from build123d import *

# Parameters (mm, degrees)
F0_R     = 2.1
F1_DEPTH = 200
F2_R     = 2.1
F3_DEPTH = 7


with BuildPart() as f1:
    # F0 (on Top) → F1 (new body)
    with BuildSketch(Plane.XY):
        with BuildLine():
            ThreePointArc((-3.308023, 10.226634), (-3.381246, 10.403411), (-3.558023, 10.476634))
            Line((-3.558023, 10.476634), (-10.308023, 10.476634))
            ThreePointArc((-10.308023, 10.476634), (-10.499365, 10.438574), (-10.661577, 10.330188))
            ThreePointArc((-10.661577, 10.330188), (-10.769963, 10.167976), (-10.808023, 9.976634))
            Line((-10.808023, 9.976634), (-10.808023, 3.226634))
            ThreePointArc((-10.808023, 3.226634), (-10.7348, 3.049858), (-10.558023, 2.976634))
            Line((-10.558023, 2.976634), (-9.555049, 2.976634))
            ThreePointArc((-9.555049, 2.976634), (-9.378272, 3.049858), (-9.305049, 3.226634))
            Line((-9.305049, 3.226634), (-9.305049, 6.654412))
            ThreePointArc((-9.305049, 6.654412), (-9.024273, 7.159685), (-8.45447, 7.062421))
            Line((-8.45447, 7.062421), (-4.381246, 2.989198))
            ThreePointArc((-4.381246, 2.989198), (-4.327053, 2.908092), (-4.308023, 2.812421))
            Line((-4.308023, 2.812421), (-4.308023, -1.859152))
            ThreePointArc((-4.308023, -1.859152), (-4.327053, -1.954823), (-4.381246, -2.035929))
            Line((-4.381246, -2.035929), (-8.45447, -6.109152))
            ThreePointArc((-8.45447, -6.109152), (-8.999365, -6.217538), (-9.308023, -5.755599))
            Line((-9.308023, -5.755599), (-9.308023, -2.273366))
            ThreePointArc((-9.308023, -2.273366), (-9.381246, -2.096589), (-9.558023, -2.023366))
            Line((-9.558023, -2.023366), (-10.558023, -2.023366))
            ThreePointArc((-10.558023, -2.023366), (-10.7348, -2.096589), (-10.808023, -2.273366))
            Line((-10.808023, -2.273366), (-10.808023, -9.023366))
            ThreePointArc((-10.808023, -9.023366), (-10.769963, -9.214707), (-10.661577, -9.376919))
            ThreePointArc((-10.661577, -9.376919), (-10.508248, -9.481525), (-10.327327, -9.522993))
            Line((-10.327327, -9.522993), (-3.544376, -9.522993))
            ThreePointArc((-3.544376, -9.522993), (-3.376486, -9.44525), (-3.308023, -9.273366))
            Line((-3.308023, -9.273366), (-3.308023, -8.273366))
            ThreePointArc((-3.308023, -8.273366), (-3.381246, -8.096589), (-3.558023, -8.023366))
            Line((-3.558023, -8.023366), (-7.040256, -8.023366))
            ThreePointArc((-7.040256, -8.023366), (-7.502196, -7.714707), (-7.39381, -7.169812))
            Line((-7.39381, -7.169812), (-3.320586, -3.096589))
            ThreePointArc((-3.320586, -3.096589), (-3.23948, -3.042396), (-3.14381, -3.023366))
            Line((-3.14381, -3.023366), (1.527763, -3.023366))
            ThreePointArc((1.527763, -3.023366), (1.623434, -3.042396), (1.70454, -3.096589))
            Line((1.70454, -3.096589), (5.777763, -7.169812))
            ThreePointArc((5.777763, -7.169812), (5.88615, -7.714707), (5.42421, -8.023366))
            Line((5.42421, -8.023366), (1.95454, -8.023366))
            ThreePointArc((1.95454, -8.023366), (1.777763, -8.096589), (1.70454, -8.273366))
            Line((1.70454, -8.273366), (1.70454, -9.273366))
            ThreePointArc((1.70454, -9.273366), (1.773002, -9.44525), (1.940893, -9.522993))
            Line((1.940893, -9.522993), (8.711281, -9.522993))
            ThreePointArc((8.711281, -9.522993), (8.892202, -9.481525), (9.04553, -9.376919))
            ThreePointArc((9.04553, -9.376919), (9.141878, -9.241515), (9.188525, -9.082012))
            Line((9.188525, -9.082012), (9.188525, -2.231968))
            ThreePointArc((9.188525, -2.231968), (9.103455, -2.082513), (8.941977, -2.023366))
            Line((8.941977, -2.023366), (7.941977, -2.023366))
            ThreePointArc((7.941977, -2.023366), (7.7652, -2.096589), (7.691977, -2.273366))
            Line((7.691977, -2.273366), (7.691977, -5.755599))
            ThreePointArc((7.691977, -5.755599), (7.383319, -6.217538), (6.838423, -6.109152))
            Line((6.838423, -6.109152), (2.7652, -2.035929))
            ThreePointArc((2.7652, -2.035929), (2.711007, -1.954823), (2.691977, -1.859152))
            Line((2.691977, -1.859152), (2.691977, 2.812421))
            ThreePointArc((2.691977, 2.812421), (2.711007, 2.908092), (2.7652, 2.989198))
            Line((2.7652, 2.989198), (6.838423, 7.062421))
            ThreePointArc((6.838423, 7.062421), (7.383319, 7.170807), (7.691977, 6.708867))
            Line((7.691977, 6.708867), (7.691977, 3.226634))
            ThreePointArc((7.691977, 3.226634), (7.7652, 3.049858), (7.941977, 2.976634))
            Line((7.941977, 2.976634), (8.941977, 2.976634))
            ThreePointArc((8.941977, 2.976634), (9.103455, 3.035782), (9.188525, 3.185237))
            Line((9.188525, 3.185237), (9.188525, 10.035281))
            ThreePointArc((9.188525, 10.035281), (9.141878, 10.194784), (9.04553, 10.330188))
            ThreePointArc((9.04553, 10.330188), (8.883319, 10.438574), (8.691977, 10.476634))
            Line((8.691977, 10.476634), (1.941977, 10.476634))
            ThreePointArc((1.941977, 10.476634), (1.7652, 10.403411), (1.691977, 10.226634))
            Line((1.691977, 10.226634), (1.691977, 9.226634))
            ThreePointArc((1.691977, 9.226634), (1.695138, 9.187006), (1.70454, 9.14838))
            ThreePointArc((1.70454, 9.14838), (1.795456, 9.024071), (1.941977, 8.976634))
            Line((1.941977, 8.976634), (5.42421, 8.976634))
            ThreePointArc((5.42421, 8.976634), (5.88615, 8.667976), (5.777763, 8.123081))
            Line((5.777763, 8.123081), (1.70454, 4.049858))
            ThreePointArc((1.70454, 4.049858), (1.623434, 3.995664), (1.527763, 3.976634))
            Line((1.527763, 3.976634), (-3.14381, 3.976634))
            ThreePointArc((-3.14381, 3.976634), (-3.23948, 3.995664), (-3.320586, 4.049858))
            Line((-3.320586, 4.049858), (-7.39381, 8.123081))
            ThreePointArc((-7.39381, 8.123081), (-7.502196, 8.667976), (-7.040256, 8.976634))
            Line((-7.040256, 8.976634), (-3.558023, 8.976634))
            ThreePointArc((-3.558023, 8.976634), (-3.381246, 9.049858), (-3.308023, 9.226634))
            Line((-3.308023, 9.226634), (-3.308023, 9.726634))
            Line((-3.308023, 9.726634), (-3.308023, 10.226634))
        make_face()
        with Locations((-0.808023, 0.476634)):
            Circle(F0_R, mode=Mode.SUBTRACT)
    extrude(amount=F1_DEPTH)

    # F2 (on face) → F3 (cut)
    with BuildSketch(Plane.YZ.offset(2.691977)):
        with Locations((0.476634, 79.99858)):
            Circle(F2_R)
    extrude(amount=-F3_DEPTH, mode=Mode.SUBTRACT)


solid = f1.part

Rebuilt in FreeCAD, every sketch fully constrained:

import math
import FreeCAD as App
import Part
import Sketcher

V = App.Vector
Q = App.Units.Quantity

doc = App.newDocument("Part")
body = doc.addObject("PartDesign::Body", "Body")

sketch1 = body.newObject("Sketcher::SketchObject", "Sketch")
sketch1.AttachmentSupport = (doc.getObject("XY_Plane"), [""])
sketch1.MapMode = "FlatFace"
sketch1.addGeometry([
    Part.ArcOfCircle(Part.Circle(V(-3.56, 10.23, 0), V(0, 0, 1), 0.25), math.radians(0), math.radians(90)),
    Part.LineSegment(V(-3.56, 10.48, 0), V(-10.31, 10.48, 0)),
    Part.ArcOfCircle(Part.Circle(V(-10.31, 9.98, 0), V(0, 0, 1), 0.5), math.radians(90), math.radians(135)),
    Part.ArcOfCircle(Part.Circle(V(-10.31, 9.98, 0), V(0, 0, 1), 0.5), math.radians(135), math.radians(180)),
    Part.LineSegment(V(-10.81, 9.98, 0), V(-10.81, 3.23, 0)),
    Part.ArcOfCircle(Part.Circle(V(-10.56, 3.23, 0), V(0, 0, 1), 0.25), math.radians(-180), math.radians(-90)),
    Part.LineSegment(V(-10.56, 2.98, 0), V(-9.56, 2.98, 0)),
    Part.ArcOfCircle(Part.Circle(V(-9.56, 3.23, 0), V(0, 0, 1), 0.25), math.radians(-90), math.radians(0)),
    Part.LineSegment(V(-9.31, 3.23, 0), V(-9.31, 6.65, 0)),
    Part.ArcOfCircle(Part.Circle(V(-8.81, 6.71, 0), V(0, 0, 1), 0.5), math.radians(45), math.radians(186)),
    Part.LineSegment(V(-8.45, 7.06, 0), V(-4.38, 2.99, 0)),
    Part.ArcOfCircle(Part.Circle(V(-4.56, 2.81, 0), V(0, 0, 1), 0.25), math.radians(0), math.radians(45)),
    Part.LineSegment(V(-4.31, 2.81, 0), V(-4.31, -1.86, 0)),
    Part.ArcOfCircle(Part.Circle(V(-4.56, -1.86, 0), V(0, 0, 1), 0.25), math.radians(-45), math.radians(0)),
    Part.LineSegment(V(-4.38, -2.04, 0), V(-8.45, -6.11, 0)),
    Part.ArcOfCircle(Part.Circle(V(-8.81, -5.76, 0), V(0, 0, 1), 0.5), math.radians(-180), math.radians(-45)),
    Part.LineSegment(V(-9.31, -5.76, 0), V(-9.31, -2.27, 0)),
    Part.ArcOfCircle(Part.Circle(V(-9.56, -2.27, 0), V(0, 0, 1), 0.25), math.radians(0), math.radians(90)),
    Part.LineSegment(V(-9.56, -2.02, 0), V(-10.56, -2.02, 0)),
    Part.ArcOfCircle(Part.Circle(V(-10.56, -2.27, 0), V(0, 0, 1), 0.25), math.radians(90), math.radians(180)),
    Part.LineSegment(V(-10.81, -2.27, 0), V(-10.81, -9.02, 0)),
    Part.ArcOfCircle(Part.Circle(V(-10.31, -9.02, 0), V(0, 0, 1), 0.5), math.radians(-180), math.radians(-135)),
    Part.ArcOfCircle(Part.Circle(V(-10.31, -9.02, 0), V(0, 0, 1), 0.5), math.radians(-135), math.radians(-92)),
    Part.LineSegment(V(-10.33, -9.52, 0), V(-3.54, -9.52, 0)),
    Part.ArcOfCircle(Part.Circle(V(-3.56, -9.27, 0), V(0, 0, 1), 0.25), math.radians(-87), math.radians(0)),
    Part.LineSegment(V(-3.31, -9.27, 0), V(-3.31, -8.27, 0)),
    Part.ArcOfCircle(Part.Circle(V(-3.56, -8.27, 0), V(0, 0, 1), 0.25), math.radians(0), math.radians(90)),
    Part.LineSegment(V(-3.56, -8.02, 0), V(-7.04, -8.02, 0)),
    Part.ArcOfCircle(Part.Circle(V(-7.04, -7.52, 0), V(0, 0, 1), 0.5), math.radians(135), math.radians(270)),
    Part.LineSegment(V(-7.39, -7.17, 0), V(-3.32, -3.1, 0)),
    Part.ArcOfCircle(Part.Circle(V(-3.14, -3.27, 0), V(0, 0, 1), 0.25), math.radians(90), math.radians(135)),
    Part.LineSegment(V(-3.14, -3.02, 0), V(1.53, -3.02, 0)),
    Part.ArcOfCircle(Part.Circle(V(1.53, -3.27, 0), V(0, 0, 1), 0.25), math.radians(45), math.radians(90)),
    Part.LineSegment(V(1.7, -3.1, 0), V(5.78, -7.17, 0)),
    Part.ArcOfCircle(Part.Circle(V(5.42, -7.52, 0), V(0, 0, 1), 0.5), math.radians(-90), math.radians(45)),
    Part.LineSegment(V(5.42, -8.02, 0), V(1.95, -8.02, 0)),
    Part.ArcOfCircle(Part.Circle(V(1.95, -8.27, 0), V(0, 0, 1), 0.25), math.radians(90), math.radians(180)),
    Part.LineSegment(V(1.7, -8.27, 0), V(1.7, -9.27, 0)),
    Part.ArcOfCircle(Part.Circle(V(1.95, -9.27, 0), V(0, 0, 1), 0.25), math.radians(180), math.radians(267)),
    Part.LineSegment(V(1.94, -9.52, 0), V(8.71, -9.52, 0)),
    Part.ArcOfCircle(Part.Circle(V(8.69, -9.02, 0), V(0, 0, 1), 0.5), math.radians(-88), math.radians(-45)),
    Part.ArcOfCircle(Part.Circle(V(8.69, -9.02, 0), V(0, 0, 1), 0.5), math.radians(-45), math.radians(-7)),
    Part.LineSegment(V(9.19, -9.08, 0), V(9.19, -2.23, 0)),
    Part.ArcOfCircle(Part.Circle(V(8.94, -2.27, 0), V(0, 0, 1), 0.25), math.radians(10), math.radians(90)),
    Part.LineSegment(V(8.94, -2.02, 0), V(7.94, -2.02, 0)),
    Part.ArcOfCircle(Part.Circle(V(7.94, -2.27, 0), V(0, 0, 1), 0.25), math.radians(90), math.radians(180)),
    Part.LineSegment(V(7.69, -2.27, 0), V(7.69, -5.76, 0)),
    Part.ArcOfCircle(Part.Circle(V(7.19, -5.76, 0), V(0, 0, 1), 0.5), math.radians(-135), math.radians(0)),
    Part.LineSegment(V(6.84, -6.11, 0), V(2.77, -2.04, 0)),
    Part.ArcOfCircle(Part.Circle(V(2.94, -1.86, 0), V(0, 0, 1), 0.25), math.radians(180), math.radians(225)),
    Part.LineSegment(V(2.69, -1.86, 0), V(2.69, 2.81, 0)),
    Part.ArcOfCircle(Part.Circle(V(2.94, 2.81, 0), V(0, 0, 1), 0.25), math.radians(135), math.radians(180)),
    Part.LineSegment(V(2.77, 2.99, 0), V(6.84, 7.06, 0)),
    Part.ArcOfCircle(Part.Circle(V(7.19, 6.71, 0), V(0, 0, 1), 0.5), math.radians(0), math.radians(135)),
    Part.LineSegment(V(7.69, 6.71, 0), V(7.69, 3.23, 0)),
    Part.ArcOfCircle(Part.Circle(V(7.94, 3.23, 0), V(0, 0, 1), 0.25), math.radians(-180), math.radians(-90)),
    Part.LineSegment(V(7.94, 2.98, 0), V(8.94, 2.98, 0)),
    Part.ArcOfCircle(Part.Circle(V(8.94, 3.23, 0), V(0, 0, 1), 0.25), math.radians(-90), math.radians(-10)),
    Part.LineSegment(V(9.19, 3.19, 0), V(9.19, 10.04, 0)),
    Part.ArcOfCircle(Part.Circle(V(8.69, 9.98, 0), V(0, 0, 1), 0.5), math.radians(7), math.radians(45)),
    Part.ArcOfCircle(Part.Circle(V(8.69, 9.98, 0), V(0, 0, 1), 0.5), math.radians(45), math.radians(90)),
    Part.LineSegment(V(8.69, 10.48, 0), V(1.94, 10.48, 0)),
    Part.ArcOfCircle(Part.Circle(V(1.94, 10.23, 0), V(0, 0, 1), 0.25), math.radians(90), math.radians(180)),
    Part.LineSegment(V(1.69, 10.23, 0), V(1.69, 9.23, 0)),
    Part.ArcOfCircle(Part.Circle(V(1.94, 9.23, 0), V(0, 0, 1), 0.25), math.radians(-180), math.radians(-161.76)),
    Part.ArcOfCircle(Part.Circle(V(1.94, 9.23, 0), V(0, 0, 1), 0.25), math.radians(-162), math.radians(-90)),
    Part.LineSegment(V(1.94, 8.98, 0), V(5.42, 8.98, 0)),
    Part.ArcOfCircle(Part.Circle(V(5.42, 8.48, 0), V(0, 0, 1), 0.5), math.radians(-45), math.radians(90)),
    Part.LineSegment(V(5.78, 8.12, 0), V(1.7, 4.05, 0)),
    Part.ArcOfCircle(Part.Circle(V(1.53, 4.23, 0), V(0, 0, 1), 0.25), math.radians(-90), math.radians(-45)),
    Part.LineSegment(V(1.53, 3.98, 0), V(-3.14, 3.98, 0)),
    Part.ArcOfCircle(Part.Circle(V(-3.14, 4.23, 0), V(0, 0, 1), 0.25), math.radians(-135), math.radians(-90)),
    Part.LineSegment(V(-3.32, 4.05, 0), V(-7.39, 8.12, 0)),
    Part.ArcOfCircle(Part.Circle(V(-7.04, 8.48, 0), V(0, 0, 1), 0.5), math.radians(90), math.radians(225)),
    Part.LineSegment(V(-7.04, 8.98, 0), V(-3.56, 8.98, 0)),
    Part.ArcOfCircle(Part.Circle(V(-3.56, 9.23, 0), V(0, 0, 1), 0.25), math.radians(-90), math.radians(0)),
    Part.LineSegment(V(-3.31, 9.23, 0), V(-3.31, 10.23, 0)),
    Part.Circle(V(-0.81, 0.48, 0), V(0, 0, 1), 2.1),
], False)
sketch1.addConstraint([
    Sketcher.Constraint("Coincident", 0, 2, 1, 1),
    Sketcher.Constraint("Tangent", 1, 2, 2, 1),
    Sketcher.Constraint("Coincident", 2, 2, 3, 1),
    Sketcher.Constraint("Tangent", 3, 2, 4, 1),
    Sketcher.Constraint("Coincident", 4, 2, 5, 1),
    Sketcher.Constraint("Coincident", 5, 2, 6, 1),
    Sketcher.Constraint("Coincident", 6, 2, 7, 1),
    Sketcher.Constraint("Coincident", 7, 2, 8, 1),
    Sketcher.Constraint("Coincident", 8, 2, 9, 2),
    Sketcher.Constraint("Tangent", 9, 1, 10, 1),
    Sketcher.Constraint("Coincident", 10, 2, 11, 2),
    Sketcher.Constraint("Tangent", 11, 1, 12, 1),
    Sketcher.Constraint("Tangent", 12, 2, 13, 2),
    Sketcher.Constraint("Coincident", 13, 1, 14, 1),
    Sketcher.Constraint("Tangent", 14, 2, 15, 2),
    Sketcher.Constraint("Tangent", 15, 1, 16, 1),
    Sketcher.Constraint("Coincident", 16, 2, 17, 1),
    Sketcher.Constraint("Coincident", 17, 2, 18, 1),
    Sketcher.Constraint("Coincident", 18, 2, 19, 1),
    Sketcher.Constraint("Coincident", 19, 2, 20, 1),
    Sketcher.Constraint("Tangent", 20, 2, 21, 1),
    Sketcher.Constraint("Coincident", 21, 2, 22, 1),
    Sketcher.Constraint("Coincident", 22, 2, 23, 1),
    Sketcher.Constraint("Coincident", 23, 2, 24, 1),
    Sketcher.Constraint("Coincident", 24, 2, 25, 1),
    Sketcher.Constraint("Coincident", 25, 2, 26, 1),
    Sketcher.Constraint("Coincident", 26, 2, 27, 1),
    Sketcher.Constraint("Tangent", 27, 2, 28, 2),
    Sketcher.Constraint("Tangent", 28, 1, 29, 1),
    Sketcher.Constraint("Coincident", 29, 2, 30, 2),
    Sketcher.Constraint("Coincident", 30, 1, 31, 1),
    Sketcher.Constraint("Tangent", 31, 2, 32, 2),
    Sketcher.Constraint("Coincident", 32, 1, 33, 1),
    Sketcher.Constraint("Tangent", 33, 2, 34, 2),
    Sketcher.Constraint("Tangent", 34, 1, 35, 1),
    Sketcher.Constraint("Coincident", 35, 2, 36, 1),
    Sketcher.Constraint("Coincident", 36, 2, 37, 1),
    Sketcher.Constraint("Coincident", 37, 2, 38, 1),
    Sketcher.Constraint("Coincident", 38, 2, 39, 1),
    Sketcher.Constraint("Coincident", 39, 2, 40, 1),
    Sketcher.Constraint("Coincident", 40, 2, 41, 1),
    Sketcher.Constraint("Coincident", 41, 2, 42, 1),
    Sketcher.Constraint("Coincident", 42, 2, 43, 1),
    Sketcher.Constraint("Coincident", 43, 2, 44, 1),
    Sketcher.Constraint("Coincident", 44, 2, 45, 1),
    Sketcher.Constraint("Coincident", 45, 2, 46, 1),
    Sketcher.Constraint("Tangent", 46, 2, 47, 2),
    Sketcher.Constraint("Tangent", 47, 1, 48, 1),
    Sketcher.Constraint("Coincident", 48, 2, 49, 2),
    Sketcher.Constraint("Tangent", 49, 1, 50, 1),
    Sketcher.Constraint("Tangent", 50, 2, 51, 2),
    Sketcher.Constraint("Coincident", 51, 1, 52, 1),
    Sketcher.Constraint("Tangent", 52, 2, 53, 2),
    Sketcher.Constraint("Tangent", 53, 1, 54, 1),
    Sketcher.Constraint("Coincident", 54, 2, 55, 1),
    Sketcher.Constraint("Coincident", 55, 2, 56, 1),
    Sketcher.Constraint("Coincident", 56, 2, 57, 1),
    Sketcher.Constraint("Coincident", 57, 2, 58, 1),
    Sketcher.Constraint("Coincident", 58, 2, 59, 1),
    Sketcher.Constraint("Coincident", 59, 2, 60, 1),
    Sketcher.Constraint("Coincident", 60, 2, 61, 1),
    Sketcher.Constraint("Coincident", 61, 2, 62, 1),
    Sketcher.Constraint("Coincident", 62, 2, 63, 1),
    Sketcher.Constraint("Coincident", 63, 2, 64, 1),
    Sketcher.Constraint("Coincident", 64, 2, 65, 1),
    Sketcher.Constraint("Coincident", 65, 2, 66, 1),
    Sketcher.Constraint("Tangent", 66, 2, 67, 2),
    Sketcher.Constraint("Coincident", 67, 1, 68, 1),
    Sketcher.Constraint("Coincident", 68, 2, 69, 2),
    Sketcher.Constraint("Coincident", 69, 1, 70, 1),
    Sketcher.Constraint("Tangent", 70, 2, 71, 2),
    Sketcher.Constraint("Coincident", 71, 1, 72, 1),
    Sketcher.Constraint("Tangent", 72, 2, 73, 2),
    Sketcher.Constraint("Tangent", 73, 1, 74, 1),
    Sketcher.Constraint("Coincident", 74, 2, 75, 1),
    Sketcher.Constraint("Coincident", 75, 2, 76, 1),
    Sketcher.Constraint("Coincident", 76, 2, 0, 1),
    Sketcher.Constraint("Horizontal", 1),
    Sketcher.Constraint("Vertical", 4),
    Sketcher.Constraint("Horizontal", 6),
    Sketcher.Constraint("Vertical", 8),
    Sketcher.Constraint("Vertical", 12),
    Sketcher.Constraint("Vertical", 16),
    Sketcher.Constraint("Horizontal", 18),
    Sketcher.Constraint("Vertical", 20),
    Sketcher.Constraint("Horizontal", 23),
    Sketcher.Constraint("Vertical", 25),
    Sketcher.Constraint("Horizontal", 27),
    Sketcher.Constraint("Horizontal", 31),
    Sketcher.Constraint("Horizontal", 35),
    Sketcher.Constraint("Vertical", 37),
    Sketcher.Constraint("Horizontal", 39),
    Sketcher.Constraint("Vertical", 42),
    Sketcher.Constraint("Horizontal", 44),
    Sketcher.Constraint("Vertical", 46),
    Sketcher.Constraint("Vertical", 50),
    Sketcher.Constraint("Vertical", 54),
    Sketcher.Constraint("Horizontal", 56),
    Sketcher.Constraint("Vertical", 58),
    Sketcher.Constraint("Horizontal", 61),
    Sketcher.Constraint("Vertical", 63),
    Sketcher.Constraint("Horizontal", 66),
    Sketcher.Constraint("Horizontal", 70),
    Sketcher.Constraint("Horizontal", 74),
    Sketcher.Constraint("Vertical", 76),
    Sketcher.Constraint("Coincident", 3, 3, 2, 3),
    Sketcher.Constraint("Coincident", 22, 3, 21, 3),
    Sketcher.Constraint("Coincident", 41, 3, 40, 3),
    Sketcher.Constraint("Coincident", 60, 3, 59, 3),
    Sketcher.Constraint("Equal", 0, 5),
    Sketcher.Constraint("Equal", 5, 7),
    Sketcher.Constraint("Equal", 3, 9),
    Sketcher.Constraint("Equal", 7, 11),
    Sketcher.Constraint("Equal", 11, 13),
    Sketcher.Constraint("Equal", 9, 15),
    Sketcher.Constraint("Equal", 13, 17),
    Sketcher.Constraint("Equal", 17, 19),
    Sketcher.Constraint("Equal", 15, 21),
    Sketcher.Constraint("Equal", 19, 24),
    Sketcher.Constraint("Equal", 24, 26),
    Sketcher.Constraint("Equal", 21, 28),
    Sketcher.Constraint("Equal", 26, 30),
    Sketcher.Constraint("Equal", 30, 32),
    Sketcher.Constraint("Equal", 28, 34),
    Sketcher.Constraint("Equal", 32, 36),
    Sketcher.Constraint("Equal", 36, 38),
    Sketcher.Constraint("Equal", 34, 40),
    Sketcher.Constraint("Equal", 38, 43),
    Sketcher.Constraint("Equal", 43, 45),
    Sketcher.Constraint("Equal", 34, 47),
    Sketcher.Constraint("Equal", 45, 49),
    Sketcher.Constraint("Equal", 49, 51),
    Sketcher.Constraint("Equal", 47, 53),
    Sketcher.Constraint("Equal", 51, 55),
    Sketcher.Constraint("Equal", 55, 57),
    Sketcher.Constraint("Equal", 41, 59),
    Sketcher.Constraint("Equal", 57, 62),
    Sketcher.Constraint("Equal", 62, 65),
    Sketcher.Constraint("Equal", 53, 67),
    Sketcher.Constraint("Equal", 69, 71),
    Sketcher.Constraint("Equal", 67, 73),
    Sketcher.Constraint("Equal", 62, 75),
    Sketcher.Constraint("Perpendicular", 10, 14),
    Sketcher.Constraint("Parallel", 14, 29),
    Sketcher.Constraint("Perpendicular", 29, 33),
    Sketcher.Constraint("Parallel", 33, 48),
    Sketcher.Constraint("Perpendicular", 48, 52),
    Sketcher.Constraint("Parallel", 52, 68),
    Sketcher.Constraint("Perpendicular", 68, 72),
    Sketcher.Constraint("Horizontal", 28, 3, 34, 3),
    Sketcher.Constraint("Horizontal", 24, 3, 38, 3),
    Sketcher.Constraint("Horizontal", 19, 3, 43, 3),
    Sketcher.Constraint("Horizontal", 15, 3, 47, 3),
    Sketcher.Constraint("Horizontal", 13, 3, 49, 3),
    Sketcher.Constraint("Horizontal", 11, 3, 51, 3),
    Sketcher.Constraint("Horizontal", 9, 3, 53, 3),
    Sketcher.Constraint("Horizontal", 7, 3, 55, 3),
    Sketcher.Constraint("Horizontal", 0, 3, 62, 3),
    Sketcher.Constraint("Horizontal", 67, 3, 73, 3),
    Sketcher.Constraint("Horizontal", 57, 3, 4, 2),
    Sketcher.Constraint("Horizontal", 4, 2, 7, 2),
    Sketcher.Constraint("Horizontal", 45, 3, 16, 2),
    Sketcher.Constraint("Horizontal", 16, 2, 19, 2),
    Sketcher.Constraint("Horizontal", 40, 3, 20, 2),
    Sketcher.Constraint("Horizontal", 38, 3, 24, 2),
    Sketcher.Constraint("Horizontal", 36, 3, 25, 2),
    Sketcher.Constraint("Horizontal", 29, 2, 32, 1),
    Sketcher.Constraint("Horizontal", 28, 1, 33, 2),
    Sketcher.Constraint("Horizontal", 25, 2, 36, 2),
    Sketcher.Constraint("Horizontal", 24, 2, 37, 2),
    Sketcher.Constraint("Horizontal", 23, 2, 38, 2),
    Sketcher.Constraint("Horizontal", 21, 2, 40, 2),
    Sketcher.Constraint("Horizontal", 19, 2, 45, 2),
    Sketcher.Constraint("Horizontal", 13, 1, 48, 2),
    Sketcher.Constraint("Horizontal", 10, 2, 51, 1),
    Sketcher.Constraint("Horizontal", 7, 2, 54, 2),
    Sketcher.Constraint("Horizontal", 2, 2, 59, 2),
    Sketcher.Constraint("Horizontal", 0, 3, 62, 2),
    Sketcher.Constraint("Horizontal", 75, 3, 63, 2),
    Sketcher.Constraint("Horizontal", 68, 2, 71, 1),
    Sketcher.Constraint("Horizontal", 67, 1, 72, 2),
    Sketcher.Constraint("Horizontal", 63, 2, 75, 2),
    Sketcher.Constraint("Horizontal", 62, 2, 76, 2),
    Sketcher.Constraint("Vertical", 9, 3, 15, 3),
    Sketcher.Constraint("Vertical", 5, 3, 19, 3),
    Sketcher.Constraint("Vertical", 0, 3, 24, 3),
    Sketcher.Constraint("Vertical", 43, 3, 57, 3),
    Sketcher.Constraint("Vertical", 41, 3, 59, 3),
    Sketcher.Constraint("Vertical", 62, 3, 65, 3),
    Sketcher.Constraint("Vertical", 34, 3, 67, 3),
    Sketcher.Constraint("Vertical", 32, 3, 69, 3),
    Sketcher.Constraint("Vertical", 30, 3, 71, 3),
    Sketcher.Constraint("Vertical", 75, 3, 0, 2),
    Sketcher.Constraint("Vertical", 19, 3, 5, 2),
    Sketcher.Constraint("Vertical", 7, 3, 6, 2),
    Sketcher.Constraint("Vertical", 10, 2, 13, 1),
    Sketcher.Constraint("Vertical", 5, 2, 18, 2),
    Sketcher.Constraint("Vertical", 2, 2, 21, 2),
    Sketcher.Constraint("Vertical", 0, 2, 26, 2),
    Sketcher.Constraint("Vertical", 71, 3, 30, 1),
    Sketcher.Constraint("Vertical", 38, 3, 35, 2),
    Sketcher.Constraint("Vertical", 32, 1, 36, 2),
    Sketcher.Constraint("Vertical", 57, 3, 43, 2),
    Sketcher.Constraint("Vertical", 55, 3, 44, 2),
    Sketcher.Constraint("Vertical", 44, 2, 55, 2),
    Sketcher.Constraint("Vertical", 43, 2, 56, 2),
    Sketcher.Constraint("Vertical", 42, 2, 57, 2),
    Sketcher.Constraint("Vertical", 40, 3, 60, 2),
    Sketcher.Constraint("Vertical", 65, 3, 61, 2),
    Sketcher.Constraint("Vertical", 37, 2, 64, 2),
    Sketcher.Constraint("Vertical", 61, 2, 65, 2),
    Sketcher.Constraint("Vertical", 64, 2, 68, 2),
    Sketcher.Constraint("Vertical", 31, 2, 69, 1),
    Sketcher.Constraint("Vertical", 26, 2, 74, 2),
    Sketcher.Constraint("Equal", 18, 44),
    Sketcher.Constraint("Equal", 1, 61),
    Sketcher.Constraint("Equal", 27, 66),
    Sketcher.Constraint("Equal", 61, 4),
    Sketcher.Constraint("Equal", 70, 12),
    Sketcher.Constraint("Equal", 74, 16),
    Sketcher.Constraint("Equal", 4, 20),
    Sketcher.Constraint("Equal", 56, 25),
    Sketcher.Constraint("Equal", 46, 54),
    Sketcher.Constraint("Equal", 37, 63),
    Sketcher.Constraint("Equal", 14, 29),
    Sketcher.Constraint("Diameter", 77, Q("4.2 mm")),
    Sketcher.Constraint("Radius", 2, Q("0.500002 mm")),
    Sketcher.Constraint("DistanceX", 18, 2, 18, 1, Q("1 mm")),
    Sketcher.Constraint("Radius", 0, Q("0.249999 mm")),
    Sketcher.Constraint("DistanceX", 1, 2, 1, 1, Q("6.75 mm")),
    Sketcher.Constraint("Radius", 64, Q("0.250022 mm")),
    Sketcher.Constraint("DistanceX", -1, 1, 64, 3, Q("1.941999 mm")),
    Sketcher.Constraint("Radius", 69, Q("0.249996 mm")),
    Sketcher.Constraint("DistanceX", 23, 1, 23, 2, Q("6.782951 mm")),
    Sketcher.Constraint("DistanceX", 35, 2, 35, 1, Q("3.46967 mm")),
    Sketcher.Constraint("DistanceY", 8, 1, 8, 2, Q("3.427778 mm")),
    Sketcher.Constraint("DistanceY", 15, 3, -1, 1, Q("5.755598 mm")),
    Sketcher.Constraint("DistanceY", -1, 1, 10, 2, Q("2.989198 mm")),
    Sketcher.Constraint("DistanceX", -1, 1, 48, 2, Q("2.7652 mm")),
    Sketcher.Constraint("DistanceX", 6, 1, 6, 2, Q("1.002974 mm")),
    Sketcher.Constraint("DistanceX", 27, 2, 27, 1, Q("3.482233 mm")),
    Sketcher.Constraint("DistanceX", 31, 1, 31, 2, Q("4.671573 mm")),
    Sketcher.Constraint("DistanceY", 42, 1, 42, 2, Q("6.850044 mm")),
    Sketcher.Constraint("DistanceX", 0, 3, -1, 1, Q("3.558022 mm")),
    Sketcher.Constraint("DistanceY", -1, 1, 2, 2, Q("10.330188 mm")),
    Sketcher.Constraint("DistanceY", 28, 1, -1, 1, Q("7.169812 mm")),
    Sketcher.Constraint("DistanceX", 77, 3, -1, 1, Q("0.808023 mm")),
    Sketcher.Constraint("DistanceY", -1, 1, 77, 3, Q("0.476634 mm")),
])
pad1 = body.newObject("PartDesign::Pad", "Pad")
pad1.Profile = sketch1
pad1.Length = 200

sketch2 = body.newObject("Sketcher::SketchObject", "Sketch001")
sketch2.AttachmentSupport = (doc.getObject("YZ_Plane"), [""])
sketch2.MapMode = "FlatFace"
sketch2.AttachmentOffset = App.Placement(V(0, 0, 2.691977), App.Rotation())
sketch2.addGeometry(Part.Circle(V(0.5, 80, 0), V(0, 0, 1), 2.1), False)
sketch2.addConstraint([
    Sketcher.Constraint("Diameter", 0, Q("4.2 mm")),
    Sketcher.Constraint("DistanceY", -1, 1, 0, 3, Q("79.99858 mm")),
    Sketcher.Constraint("DistanceX", -1, 1, 0, 3, Q("0.476634 mm")),
])
pocket1 = body.newObject("PartDesign::Pocket", "Pocket")
pocket1.Profile = sketch2
pocket1.Length = 7

doc.recompute()
